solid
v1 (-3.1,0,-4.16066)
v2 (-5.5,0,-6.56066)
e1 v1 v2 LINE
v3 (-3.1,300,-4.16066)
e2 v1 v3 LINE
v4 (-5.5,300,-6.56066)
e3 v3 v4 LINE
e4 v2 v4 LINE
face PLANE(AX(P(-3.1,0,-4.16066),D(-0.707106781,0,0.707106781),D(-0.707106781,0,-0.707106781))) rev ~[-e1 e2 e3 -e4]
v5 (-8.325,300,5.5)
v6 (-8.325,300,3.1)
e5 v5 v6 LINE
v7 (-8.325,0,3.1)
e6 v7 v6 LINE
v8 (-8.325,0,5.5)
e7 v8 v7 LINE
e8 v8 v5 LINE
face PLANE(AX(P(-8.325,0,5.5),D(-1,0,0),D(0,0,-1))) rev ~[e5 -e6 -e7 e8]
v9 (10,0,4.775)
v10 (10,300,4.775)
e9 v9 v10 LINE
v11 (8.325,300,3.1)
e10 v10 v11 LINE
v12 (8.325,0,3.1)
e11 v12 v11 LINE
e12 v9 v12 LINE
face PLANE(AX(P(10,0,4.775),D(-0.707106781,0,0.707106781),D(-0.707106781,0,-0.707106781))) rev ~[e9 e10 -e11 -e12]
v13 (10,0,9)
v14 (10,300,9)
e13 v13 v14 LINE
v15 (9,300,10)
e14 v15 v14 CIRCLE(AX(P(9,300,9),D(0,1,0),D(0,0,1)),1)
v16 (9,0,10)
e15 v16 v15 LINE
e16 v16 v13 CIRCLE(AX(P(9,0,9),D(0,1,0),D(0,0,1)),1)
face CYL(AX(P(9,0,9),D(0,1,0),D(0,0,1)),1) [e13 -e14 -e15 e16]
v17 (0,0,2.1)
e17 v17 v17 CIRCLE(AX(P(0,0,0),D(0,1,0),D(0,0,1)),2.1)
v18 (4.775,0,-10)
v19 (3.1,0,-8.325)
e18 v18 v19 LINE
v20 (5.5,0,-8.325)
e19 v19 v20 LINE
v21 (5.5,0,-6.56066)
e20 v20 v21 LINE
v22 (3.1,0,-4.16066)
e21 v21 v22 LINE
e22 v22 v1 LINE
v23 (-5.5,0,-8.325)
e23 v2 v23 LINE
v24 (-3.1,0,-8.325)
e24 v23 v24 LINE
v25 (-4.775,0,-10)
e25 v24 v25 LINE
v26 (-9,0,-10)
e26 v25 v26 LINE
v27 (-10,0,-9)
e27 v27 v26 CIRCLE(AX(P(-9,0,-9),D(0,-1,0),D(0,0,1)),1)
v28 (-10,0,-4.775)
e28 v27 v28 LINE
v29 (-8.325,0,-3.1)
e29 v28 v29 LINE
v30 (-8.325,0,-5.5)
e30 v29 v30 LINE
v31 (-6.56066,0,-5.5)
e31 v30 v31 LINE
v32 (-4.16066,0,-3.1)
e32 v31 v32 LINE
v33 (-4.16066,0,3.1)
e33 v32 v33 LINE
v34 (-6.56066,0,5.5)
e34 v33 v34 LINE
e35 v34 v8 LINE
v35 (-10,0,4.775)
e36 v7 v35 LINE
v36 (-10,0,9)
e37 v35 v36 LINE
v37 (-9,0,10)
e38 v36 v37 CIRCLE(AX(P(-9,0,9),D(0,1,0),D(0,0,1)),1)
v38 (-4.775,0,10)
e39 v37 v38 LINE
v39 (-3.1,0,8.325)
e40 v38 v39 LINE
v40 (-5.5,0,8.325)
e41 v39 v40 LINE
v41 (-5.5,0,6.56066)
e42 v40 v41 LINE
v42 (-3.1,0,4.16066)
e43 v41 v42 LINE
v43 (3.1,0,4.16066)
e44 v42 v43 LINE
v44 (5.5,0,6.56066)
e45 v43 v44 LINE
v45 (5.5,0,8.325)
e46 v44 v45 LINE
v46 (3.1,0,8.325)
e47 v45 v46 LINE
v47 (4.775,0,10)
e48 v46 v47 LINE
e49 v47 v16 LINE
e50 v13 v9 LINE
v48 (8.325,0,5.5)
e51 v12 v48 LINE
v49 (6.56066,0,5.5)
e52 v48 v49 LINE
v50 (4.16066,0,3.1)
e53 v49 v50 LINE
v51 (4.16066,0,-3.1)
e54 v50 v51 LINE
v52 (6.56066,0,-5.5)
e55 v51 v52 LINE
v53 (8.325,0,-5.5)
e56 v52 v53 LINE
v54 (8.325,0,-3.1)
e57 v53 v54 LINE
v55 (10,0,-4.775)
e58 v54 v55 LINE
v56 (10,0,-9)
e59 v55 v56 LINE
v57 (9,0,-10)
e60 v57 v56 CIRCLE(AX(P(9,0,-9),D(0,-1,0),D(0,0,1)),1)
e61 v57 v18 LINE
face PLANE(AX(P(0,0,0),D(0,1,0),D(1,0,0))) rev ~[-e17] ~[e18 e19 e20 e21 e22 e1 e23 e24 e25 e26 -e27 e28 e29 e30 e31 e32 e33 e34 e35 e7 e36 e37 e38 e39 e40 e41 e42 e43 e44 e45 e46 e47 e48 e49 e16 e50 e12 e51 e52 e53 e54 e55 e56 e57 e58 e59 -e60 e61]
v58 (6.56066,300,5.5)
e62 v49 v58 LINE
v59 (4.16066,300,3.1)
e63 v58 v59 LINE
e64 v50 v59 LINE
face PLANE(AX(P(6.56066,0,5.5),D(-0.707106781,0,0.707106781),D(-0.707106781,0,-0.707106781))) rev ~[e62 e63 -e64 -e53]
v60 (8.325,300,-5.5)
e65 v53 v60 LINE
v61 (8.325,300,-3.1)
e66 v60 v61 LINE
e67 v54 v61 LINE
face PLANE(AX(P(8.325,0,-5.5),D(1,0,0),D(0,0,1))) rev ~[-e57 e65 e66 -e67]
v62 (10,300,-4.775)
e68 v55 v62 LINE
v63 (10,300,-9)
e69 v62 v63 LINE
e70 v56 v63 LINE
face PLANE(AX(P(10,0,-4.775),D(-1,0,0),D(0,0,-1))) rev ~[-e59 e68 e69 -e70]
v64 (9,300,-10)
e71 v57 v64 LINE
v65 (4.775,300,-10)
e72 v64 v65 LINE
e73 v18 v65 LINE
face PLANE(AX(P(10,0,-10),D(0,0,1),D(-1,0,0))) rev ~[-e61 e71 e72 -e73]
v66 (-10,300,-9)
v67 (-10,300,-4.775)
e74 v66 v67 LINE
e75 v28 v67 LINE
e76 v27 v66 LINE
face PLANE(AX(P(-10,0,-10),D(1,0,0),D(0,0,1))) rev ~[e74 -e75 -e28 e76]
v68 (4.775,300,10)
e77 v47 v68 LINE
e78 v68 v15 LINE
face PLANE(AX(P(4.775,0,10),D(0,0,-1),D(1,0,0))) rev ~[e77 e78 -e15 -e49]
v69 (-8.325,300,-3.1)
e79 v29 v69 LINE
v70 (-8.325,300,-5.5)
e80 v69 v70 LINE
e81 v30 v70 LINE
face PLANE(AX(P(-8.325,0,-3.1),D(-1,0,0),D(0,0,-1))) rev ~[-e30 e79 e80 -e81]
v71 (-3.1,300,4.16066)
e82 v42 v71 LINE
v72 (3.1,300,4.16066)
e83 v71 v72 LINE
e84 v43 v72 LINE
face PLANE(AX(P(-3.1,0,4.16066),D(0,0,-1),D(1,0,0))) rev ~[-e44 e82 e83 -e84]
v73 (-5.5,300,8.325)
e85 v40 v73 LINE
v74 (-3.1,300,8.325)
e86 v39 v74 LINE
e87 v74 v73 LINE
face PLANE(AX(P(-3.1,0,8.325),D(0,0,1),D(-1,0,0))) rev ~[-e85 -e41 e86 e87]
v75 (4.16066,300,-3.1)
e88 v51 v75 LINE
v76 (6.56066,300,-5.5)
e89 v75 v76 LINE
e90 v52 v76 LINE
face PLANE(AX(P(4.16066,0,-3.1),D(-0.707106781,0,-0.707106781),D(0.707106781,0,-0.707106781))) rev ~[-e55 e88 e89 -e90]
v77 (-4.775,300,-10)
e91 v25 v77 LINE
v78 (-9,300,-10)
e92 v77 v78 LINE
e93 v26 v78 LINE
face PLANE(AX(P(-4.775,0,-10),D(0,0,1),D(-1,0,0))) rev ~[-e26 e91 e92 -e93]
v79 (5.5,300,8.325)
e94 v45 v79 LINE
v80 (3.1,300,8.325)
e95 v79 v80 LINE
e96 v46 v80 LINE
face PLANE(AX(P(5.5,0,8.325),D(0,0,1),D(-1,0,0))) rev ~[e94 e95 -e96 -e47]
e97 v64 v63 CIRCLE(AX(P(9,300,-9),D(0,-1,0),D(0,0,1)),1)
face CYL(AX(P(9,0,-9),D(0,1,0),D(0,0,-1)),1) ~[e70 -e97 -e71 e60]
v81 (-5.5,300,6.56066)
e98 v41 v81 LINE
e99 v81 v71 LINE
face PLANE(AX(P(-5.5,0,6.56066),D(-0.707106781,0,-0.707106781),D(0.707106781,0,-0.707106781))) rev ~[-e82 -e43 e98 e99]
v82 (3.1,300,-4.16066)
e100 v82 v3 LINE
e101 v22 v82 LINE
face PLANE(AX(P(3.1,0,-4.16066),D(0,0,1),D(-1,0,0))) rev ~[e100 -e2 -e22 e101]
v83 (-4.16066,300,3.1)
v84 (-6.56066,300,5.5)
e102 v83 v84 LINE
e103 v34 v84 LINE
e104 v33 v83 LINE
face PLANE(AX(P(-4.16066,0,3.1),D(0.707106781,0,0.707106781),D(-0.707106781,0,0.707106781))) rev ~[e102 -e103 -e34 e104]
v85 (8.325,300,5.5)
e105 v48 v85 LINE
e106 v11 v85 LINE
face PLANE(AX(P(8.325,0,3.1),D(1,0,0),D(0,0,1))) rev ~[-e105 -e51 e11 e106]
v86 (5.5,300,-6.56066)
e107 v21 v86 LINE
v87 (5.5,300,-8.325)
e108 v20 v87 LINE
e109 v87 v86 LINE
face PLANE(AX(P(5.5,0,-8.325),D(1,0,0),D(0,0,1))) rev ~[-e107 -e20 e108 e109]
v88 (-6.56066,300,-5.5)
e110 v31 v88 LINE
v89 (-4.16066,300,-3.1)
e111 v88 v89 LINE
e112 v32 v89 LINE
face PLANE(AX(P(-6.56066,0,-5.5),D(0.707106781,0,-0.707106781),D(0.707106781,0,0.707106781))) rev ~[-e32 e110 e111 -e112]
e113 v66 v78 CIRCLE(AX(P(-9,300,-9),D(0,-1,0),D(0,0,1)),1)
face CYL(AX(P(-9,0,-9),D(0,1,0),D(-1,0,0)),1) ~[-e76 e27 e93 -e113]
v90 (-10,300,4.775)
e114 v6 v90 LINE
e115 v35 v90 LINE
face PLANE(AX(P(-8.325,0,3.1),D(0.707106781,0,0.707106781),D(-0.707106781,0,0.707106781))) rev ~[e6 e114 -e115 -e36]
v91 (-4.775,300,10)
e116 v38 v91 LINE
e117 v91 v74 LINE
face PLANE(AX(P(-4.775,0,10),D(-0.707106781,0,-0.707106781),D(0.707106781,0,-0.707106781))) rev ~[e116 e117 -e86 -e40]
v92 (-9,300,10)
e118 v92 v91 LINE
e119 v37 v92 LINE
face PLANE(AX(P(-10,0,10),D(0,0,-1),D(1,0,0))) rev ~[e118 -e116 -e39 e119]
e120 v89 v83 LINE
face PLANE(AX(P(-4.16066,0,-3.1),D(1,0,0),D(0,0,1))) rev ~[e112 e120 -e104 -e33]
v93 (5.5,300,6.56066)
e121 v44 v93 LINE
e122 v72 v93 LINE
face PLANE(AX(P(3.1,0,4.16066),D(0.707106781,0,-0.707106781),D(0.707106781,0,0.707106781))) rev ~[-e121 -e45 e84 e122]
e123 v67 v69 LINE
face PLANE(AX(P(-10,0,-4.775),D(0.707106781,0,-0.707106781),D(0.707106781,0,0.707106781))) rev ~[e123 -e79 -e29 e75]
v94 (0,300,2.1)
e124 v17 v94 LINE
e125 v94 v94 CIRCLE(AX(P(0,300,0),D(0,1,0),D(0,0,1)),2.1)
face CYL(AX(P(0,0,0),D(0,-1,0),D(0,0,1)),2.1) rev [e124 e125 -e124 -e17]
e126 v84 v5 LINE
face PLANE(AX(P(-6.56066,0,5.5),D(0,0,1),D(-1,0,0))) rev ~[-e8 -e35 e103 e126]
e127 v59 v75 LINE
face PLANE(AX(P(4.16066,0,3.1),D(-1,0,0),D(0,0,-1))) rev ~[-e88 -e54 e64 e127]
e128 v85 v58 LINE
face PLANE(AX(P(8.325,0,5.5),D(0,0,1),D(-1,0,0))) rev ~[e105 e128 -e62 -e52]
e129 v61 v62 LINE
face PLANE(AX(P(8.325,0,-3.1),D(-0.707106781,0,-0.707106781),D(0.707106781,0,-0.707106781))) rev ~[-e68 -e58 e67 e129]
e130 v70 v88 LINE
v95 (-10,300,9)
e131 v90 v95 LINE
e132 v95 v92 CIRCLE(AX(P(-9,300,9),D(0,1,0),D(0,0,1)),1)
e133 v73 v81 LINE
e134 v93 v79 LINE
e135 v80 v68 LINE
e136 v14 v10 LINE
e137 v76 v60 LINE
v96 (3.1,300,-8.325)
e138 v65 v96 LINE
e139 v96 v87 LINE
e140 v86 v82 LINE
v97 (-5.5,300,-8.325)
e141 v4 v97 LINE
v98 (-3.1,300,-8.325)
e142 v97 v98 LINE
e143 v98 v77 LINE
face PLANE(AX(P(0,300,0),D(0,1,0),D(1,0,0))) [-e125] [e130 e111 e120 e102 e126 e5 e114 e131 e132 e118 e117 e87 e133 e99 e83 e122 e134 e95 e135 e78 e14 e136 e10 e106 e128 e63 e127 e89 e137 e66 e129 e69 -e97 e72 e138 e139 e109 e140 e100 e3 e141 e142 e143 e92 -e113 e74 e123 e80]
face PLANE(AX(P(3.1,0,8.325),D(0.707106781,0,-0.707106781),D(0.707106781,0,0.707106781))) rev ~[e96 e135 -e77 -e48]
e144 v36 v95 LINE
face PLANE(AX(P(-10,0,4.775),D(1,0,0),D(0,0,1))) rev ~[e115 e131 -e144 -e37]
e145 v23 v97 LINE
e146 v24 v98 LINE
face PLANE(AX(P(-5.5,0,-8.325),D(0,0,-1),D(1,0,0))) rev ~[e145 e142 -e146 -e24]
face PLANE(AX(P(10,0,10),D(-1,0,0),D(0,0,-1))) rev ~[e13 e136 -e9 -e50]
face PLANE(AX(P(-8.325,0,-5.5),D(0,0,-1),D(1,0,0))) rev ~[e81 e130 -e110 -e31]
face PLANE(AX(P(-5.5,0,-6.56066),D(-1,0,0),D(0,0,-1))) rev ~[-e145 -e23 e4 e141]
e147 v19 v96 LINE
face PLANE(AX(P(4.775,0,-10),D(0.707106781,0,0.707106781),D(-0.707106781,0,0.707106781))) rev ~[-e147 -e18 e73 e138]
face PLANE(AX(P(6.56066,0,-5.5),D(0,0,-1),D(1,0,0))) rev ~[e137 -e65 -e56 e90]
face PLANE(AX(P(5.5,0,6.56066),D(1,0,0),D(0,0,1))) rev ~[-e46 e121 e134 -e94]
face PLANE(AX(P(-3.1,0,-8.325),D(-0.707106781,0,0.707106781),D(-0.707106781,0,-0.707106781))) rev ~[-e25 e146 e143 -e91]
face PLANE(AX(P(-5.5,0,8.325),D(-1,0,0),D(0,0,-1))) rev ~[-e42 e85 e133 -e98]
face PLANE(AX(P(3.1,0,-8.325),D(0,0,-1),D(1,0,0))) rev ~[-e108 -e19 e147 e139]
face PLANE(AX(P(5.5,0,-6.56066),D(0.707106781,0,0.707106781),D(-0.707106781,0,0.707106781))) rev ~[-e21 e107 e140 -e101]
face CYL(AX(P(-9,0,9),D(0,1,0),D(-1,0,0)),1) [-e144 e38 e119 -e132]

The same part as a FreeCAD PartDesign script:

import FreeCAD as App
import Part
import Sketcher
from FreeCAD import Vector
Q = App.Units.Quantity


def edges_at(feature, points):
    """Names of the edges that pass closest to the given points."""
    edges = feature.Shape.Edges
    near = lambda p: min(range(len(edges)), key=lambda i: edges[i].distToShape(Part.Vertex(*p))[0])
    return sorted({f"Edge{near(p) + 1}" for p in points})


def add_polygon(sketch, points):
    """Adds a closed chain of lines whose ends are joined by coincident constraints."""
    first, n = sketch.GeometryCount, len(points)
    for a, b in zip(points, points[1:] + points[:1]):
        sketch.addGeometry(Part.LineSegment(App.Vector(*a, 0), App.Vector(*b, 0)), False)
    for i in range(n):
        sketch.addConstraint(Sketcher.Constraint("Coincident", first + i, 2, first + (i + 1) % n, 1))

doc = App.newDocument("Part")
params = doc.addObject("Spreadsheet::Sheet", "Params")
for row, (alias, value) in enumerate([
    ("sketch1_diameter", "4.2 mm"),
    ("sketch1_width", "2.4 mm"),
    ("sketch1_width2", "6.2 mm"),
    ("pad1_length", "300 mm"),
    ("fillet_radius", "1 mm"),
], start=1):
    params.set(f"A{row}", alias)
    params.set(f"B{row}", "=" + value)
    params.setAlias(f"B{row}", alias)

body = doc.addObject("PartDesign::Body", "Body")

# Sketch on XZ plane
sketch1 = body.newObject("Sketcher::SketchObject", "Sketch")
sketch1.AttachmentSupport = (doc.getObject("XZ_Plane"), [""])
sketch1.MapMode = "FlatFace"
add_polygon(sketch1, [(-8.3, -3.1), (-8.3, -5.5), (-6.6, -5.5), (-4.2, -3.1), (-4.2, 3.1), (-6.6, 5.5), (-8.3, 5.5), (-8.3, 3.1), (-10, 4.8), (-10, 10), (-4.8, 10), (-3.1, 8.3), (-5.5, 8.3), (-5.5, 6.6), (-3.1, 4.2), (3.1, 4.2), (5.5, 6.6), (5.5, 8.3), (3.1, 8.3), (4.8, 10), (10, 10), (10, 4.8), (8.3, 3.1), (8.3, 5.5), (6.6, 5.5), (4.2, 3.1), (4.2, -3.1), (6.6, -5.5), (8.3, -5.5), (8.3, -3.1), (10, -4.8), (10, -10), (4.8, -10), (3.1, -8.3), (5.5, -8.3), (5.5, -6.6), (3.1, -4.2), (-3.1, -4.2), (-5.5, -6.6), (-5.5, -8.3), (-3.1, -8.3), (-4.8, -10), (-10, -10), (-10, -4.8)])  # lines 0-43
sketch1.addGeometry(Part.Circle(Vector(0, 0, 0), Vector(0, 0, 1), 2.1), False)  # 44
sketch1.addConstraint([
    Sketcher.Constraint("Vertical", 0),
    Sketcher.Constraint("Horizontal", 1),
    Sketcher.Constraint("Vertical", 3),
    Sketcher.Constraint("Horizontal", 5),
    Sketcher.Constraint("Vertical", 6),
    Sketcher.Constraint("Vertical", 8),
    Sketcher.Constraint("Horizontal", 9),
    Sketcher.Constraint("Horizontal", 11),
    Sketcher.Constraint("Vertical", 12),
    Sketcher.Constraint("Horizontal", 14),
    Sketcher.Constraint("Vertical", 16),
    Sketcher.Constraint("Horizontal", 17),
    Sketcher.Constraint("Horizontal", 19),
    Sketcher.Constraint("Vertical", 20),
    Sketcher.Constraint("Vertical", 22),
    Sketcher.Constraint("Horizontal", 23),
    Sketcher.Constraint("Vertical", 25),
    Sketcher.Constraint("Horizontal", 27),
    Sketcher.Constraint("Vertical", 28),
    Sketcher.Constraint("Vertical", 30),
    Sketcher.Constraint("Horizontal", 31),
    Sketcher.Constraint("Horizontal", 33),
    Sketcher.Constraint("Vertical", 34),
    Sketcher.Constraint("Horizontal", 36),
    Sketcher.Constraint("Vertical", 38),
    Sketcher.Constraint("Horizontal", 39),
    Sketcher.Constraint("Horizontal", 41),
    Sketcher.Constraint("Vertical", 42),
    Sketcher.Constraint("Coincident", 44, 3, -1, 1),
    Sketcher.Constraint("Symmetric", 0, 2, 22, 2, -1, 1),
    Sketcher.Constraint("Symmetric", 2, 2, 24, 2, -1, 1),
    Sketcher.Constraint("Symmetric", 4, 2, 26, 2, -1, 1),
    Sketcher.Constraint("Symmetric", 6, 2, 28, 2, -1, 1),
    Sketcher.Constraint("Symmetric", 7, 2, 29, 2, -1, 1),
    Sketcher.Constraint("Symmetric", 9, 2, 31, 2, -1, 1),
    Sketcher.Constraint("Symmetric", 10, 2, 32, 2, -1, 1),
    Sketcher.Constraint("Symmetric", 12, 2, 34, 2, -1, 1),
    Sketcher.Constraint("Symmetric", 13, 2, 35, 2, -1, 1),
    Sketcher.Constraint("Symmetric", 15, 2, 37, 2, -1, 1),
    Sketcher.Constraint("Symmetric", 17, 2, 39, 2, -1, 1),
    Sketcher.Constraint("Symmetric", 18, 2, 40, 2, -1, 1),
    Sketcher.Constraint("Symmetric", 20, 2, 42, 2, -1, 1),
    Sketcher.Constraint("Symmetric", 12, 2, 15, 2, -2),
    Sketcher.Constraint("Symmetric", 10, 2, 17, 2, -2),
    Sketcher.Constraint("Symmetric", 9, 2, 18, 2, -2),
    Sketcher.Constraint("Symmetric", 7, 2, 20, 2, -2),
    Sketcher.Constraint("Symmetric", 6, 2, 21, 2, -2),
    Sketcher.Constraint("Symmetric", 4, 2, 23, 2, -2),
    Sketcher.Constraint("Perpendicular", 2, 4),
    Sketcher.Constraint("Parallel", 4, 7),
    Sketcher.Constraint("Parallel", 7, 10),
    Sketcher.Constraint("Parallel", 10, 13),
    Sketcher.Constraint("Perpendicular", 13, 15),
    Sketcher.Constraint("Parallel", 15, 18),
    Sketcher.Constraint("Parallel", 21, 24),
    Sketcher.Constraint("Perpendicular", 24, 26),
    Sketcher.Constraint("Perpendicular", 35, 37),
    Sketcher.Constraint("Parallel", 40, 43),
    Sketcher.Constraint("Horizontal", 3, 2, 6, 2),
    Sketcher.Constraint("Vertical", 10, 2, 13, 2),
    Sketcher.Constraint("Equal", 39, 0),
    Sketcher.Constraint("Equal", 36, 3),
    Sketcher.Constraint("Equal", 41, 8),
    Sketcher.Constraint("Equal", 27, 12),
    Sketcher.Constraint("Equal", 7, 10),
    Sketcher.Constraint("Diameter", 44, Q("4.2 mm")),
    Sketcher.Constraint("DistanceX", 11, 2, 11, 1, Q("2.4 mm")),
    Sketcher.Constraint("DistanceX", 14, 1, 14, 2, Q("6.2 mm")),
    Sketcher.Constraint("DistanceX", 7, 2, -1, 1, Q("10 mm")),
    Sketcher.Constraint("DistanceX", 9, 1, 9, 2, Q("5.225 mm")),
    Sketcher.Constraint("DistanceX", 1, 1, 1, 2, Q("1.76434 mm")),
])
sketch1.setExpression("Constraints[109]", "Params.sketch1_diameter")
sketch1.setExpression("Constraints[110]", "Params.sketch1_width")
sketch1.setExpression("Constraints[111]", "Params.sketch1_width2")
pad1 = body.newObject("PartDesign::Pad", "Pad")
pad1.Profile = sketch1
pad1.setExpression("Length", "Params.pad1_length")
pad1.Reversed = True
doc.recompute()

fillet = body.newObject("PartDesign::Fillet", "Fillet")
fillet.Base = (pad1, edges_at(pad1, [
    (10, 150, -10),
    (10, 150, 10),
    (-10, 150, 10),
    (-10, 150, -10),
]))
fillet.setExpression("Radius", "Params.fillet_radius")

doc.recompute()
